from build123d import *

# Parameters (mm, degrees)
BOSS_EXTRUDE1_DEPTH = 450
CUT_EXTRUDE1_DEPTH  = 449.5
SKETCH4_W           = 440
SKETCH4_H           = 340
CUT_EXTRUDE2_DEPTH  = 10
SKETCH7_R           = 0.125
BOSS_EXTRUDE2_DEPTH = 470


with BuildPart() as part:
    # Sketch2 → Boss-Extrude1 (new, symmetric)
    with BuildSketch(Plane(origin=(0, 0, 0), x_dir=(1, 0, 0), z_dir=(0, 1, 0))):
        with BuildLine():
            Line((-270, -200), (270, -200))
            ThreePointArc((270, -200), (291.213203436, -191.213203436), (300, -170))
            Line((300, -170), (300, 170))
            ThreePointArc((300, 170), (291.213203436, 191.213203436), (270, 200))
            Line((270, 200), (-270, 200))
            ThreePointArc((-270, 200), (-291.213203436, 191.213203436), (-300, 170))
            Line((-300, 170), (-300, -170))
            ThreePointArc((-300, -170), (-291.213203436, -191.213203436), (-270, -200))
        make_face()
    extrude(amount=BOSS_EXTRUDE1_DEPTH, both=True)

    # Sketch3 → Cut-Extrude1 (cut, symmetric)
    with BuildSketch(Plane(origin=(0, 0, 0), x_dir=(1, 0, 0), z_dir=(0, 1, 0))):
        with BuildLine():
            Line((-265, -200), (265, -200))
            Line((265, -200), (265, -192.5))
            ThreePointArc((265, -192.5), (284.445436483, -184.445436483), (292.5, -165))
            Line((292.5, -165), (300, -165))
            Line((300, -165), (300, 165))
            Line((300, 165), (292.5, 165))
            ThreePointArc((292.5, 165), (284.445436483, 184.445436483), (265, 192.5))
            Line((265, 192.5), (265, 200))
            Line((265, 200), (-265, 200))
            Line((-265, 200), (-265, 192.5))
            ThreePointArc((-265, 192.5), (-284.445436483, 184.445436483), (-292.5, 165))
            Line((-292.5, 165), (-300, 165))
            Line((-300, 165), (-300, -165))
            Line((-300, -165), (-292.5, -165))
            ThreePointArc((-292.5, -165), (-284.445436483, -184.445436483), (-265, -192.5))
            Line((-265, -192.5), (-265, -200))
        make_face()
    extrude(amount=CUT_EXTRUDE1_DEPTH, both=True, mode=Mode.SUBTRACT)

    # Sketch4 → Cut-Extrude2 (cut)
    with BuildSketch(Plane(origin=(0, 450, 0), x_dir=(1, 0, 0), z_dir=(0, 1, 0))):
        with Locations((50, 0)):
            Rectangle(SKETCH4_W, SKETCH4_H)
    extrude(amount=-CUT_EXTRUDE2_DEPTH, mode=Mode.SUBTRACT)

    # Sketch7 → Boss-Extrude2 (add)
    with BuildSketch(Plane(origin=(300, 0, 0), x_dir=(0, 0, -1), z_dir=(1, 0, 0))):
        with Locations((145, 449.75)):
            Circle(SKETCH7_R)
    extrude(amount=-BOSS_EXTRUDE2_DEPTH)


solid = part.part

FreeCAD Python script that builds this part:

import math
import FreeCAD as App
import Part
import Sketcher
from FreeCAD import Vector
Q = App.Units.Quantity

doc = App.newDocument("Part")
body = doc.addObject("PartDesign::Body", "Body")

sketch1 = body.newObject("Sketcher::SketchObject", "Sketch")
sketch1.AttachmentSupport = (doc.getObject("XZ_Plane"), [""])
sketch1.MapMode = "FlatFace"
sketch1.addGeometry([
    Part.LineSegment(Vector(-270, 200, 0), Vector(270, 200, 0)),
    Part.ArcOfCircle(Part.Circle(Vector(270, 170, 0), Vector(0, 0, 1), 30), math.radians(0), math.radians(90)),
    Part.LineSegment(Vector(300, 170, 0), Vector(300, -170, 0)),
    Part.ArcOfCircle(Part.Circle(Vector(270, -170, 0), Vector(0, 0, 1), 30), math.radians(-90), math.radians(0)),
    Part.LineSegment(Vector(270, -200, 0), Vector(-270, -200, 0)),
    Part.ArcOfCircle(Part.Circle(Vector(-270, -170, 0), Vector(0, 0, 1), 30), math.radians(180), math.radians(270)),
    Part.LineSegment(Vector(-300, -170, 0), Vector(-300, 170, 0)),
    Part.ArcOfCircle(Part.Circle(Vector(-270, 170, 0), Vector(0, 0, 1), 30), math.radians(90), math.radians(180)),
], False)
sketch1.addConstraint([
    Sketcher.Constraint("Tangent", 0, 2, 1, 2),
    Sketcher.Constraint("Tangent", 1, 1, 2, 1),
    Sketcher.Constraint("Tangent", 2, 2, 3, 2),
    Sketcher.Constraint("Tangent", 3, 1, 4, 1),
    Sketcher.Constraint("Tangent", 4, 2, 5, 2),
    Sketcher.Constraint("Tangent", 5, 1, 6, 1),
    Sketcher.Constraint("Tangent", 6, 2, 7, 2),
    Sketcher.Constraint("Tangent", 7, 1, 0, 1),
    Sketcher.Constraint("Horizontal", 0),
    Sketcher.Constraint("Vertical", 2),
    Sketcher.Constraint("Horizontal", 4),
    Sketcher.Constraint("Vertical", 6),
    Sketcher.Constraint("Equal", 1, 3),
    Sketcher.Constraint("Equal", 3, 5),
    Sketcher.Constraint("Equal", 5, 7),
    Sketcher.Constraint("Symmetric", 1, 3, 5, 3, -1, 1),
    Sketcher.Constraint("Radius", 1, Q("30 mm")),
    Sketcher.Constraint("DistanceX", 0, 1, 0, 2, Q("540 mm")),
    Sketcher.Constraint("DistanceY", 2, 2, 2, 1, Q("340 mm")),
])
pad1 = body.newObject("PartDesign::Pad", "Pad")
pad1.Profile = sketch1
pad1.Length = 900
pad1.Midplane = True

sketch2 = body.newObject("Sketcher::SketchObject", "Sketch001")
sketch2.AttachmentSupport = (doc.getObject("XZ_Plane"), [""])
sketch2.MapMode = "FlatFace"
sketch2.addGeometry([
    Part.LineSegment(Vector(-265, 200, 0), Vector(265, 200, 0)),
    Part.LineSegment(Vector(265, 200, 0), Vector(265, 192.5, 0)),
    Part.ArcOfCircle(Part.Circle(Vector(265, 165, 0), Vector(0, 0, 1), 27.5), math.radians(0), math.radians(90)),
    Part.LineSegment(Vector(292.5, 165, 0), Vector(300, 165, 0)),
    Part.LineSegment(Vector(300, 165, 0), Vector(300, -165, 0)),
    Part.LineSegment(Vector(300, -165, 0), Vector(292.5, -165, 0)),
    Part.ArcOfCircle(Part.Circle(Vector(265, -165, 0), Vector(0, 0, 1), 27.5), math.radians(-90), math.radians(0)),
    Part.LineSegment(Vector(265, -192.5, 0), Vector(265, -200, 0)),
    Part.LineSegment(Vector(265, -200, 0), Vector(-265, -200, 0)),
    Part.LineSegment(Vector(-265, -200, 0), Vector(-265, -192.5, 0)),
    Part.ArcOfCircle(Part.Circle(Vector(-265, -165, 0), Vector(0, 0, 1), 27.5), math.radians(180), math.radians(270)),
    Part.LineSegment(Vector(-292.5, -165, 0), Vector(-300, -165, 0)),
    Part.LineSegment(Vector(-300, -165, 0), Vector(-300, 165, 0)),
    Part.LineSegment(Vector(-300, 165, 0), Vector(-292.5, 165, 0)),
    Part.ArcOfCircle(Part.Circle(Vector(-265, 165, 0), Vector(0, 0, 1), 27.5), math.radians(90), math.radians(180)),
    Part.LineSegment(Vector(-265, 192.5, 0), Vector(-265, 200, 0)),
], False)
sketch2.addConstraint([
    Sketcher.Constraint("Coincident", 0, 2, 1, 1),
    Sketcher.Constraint("Coincident", 1, 2, 2, 2),
    Sketcher.Constraint("Coincident", 2, 1, 3, 1),
    Sketcher.Constraint("Coincident", 3, 2, 4, 1),
    Sketcher.Constraint("Coincident", 4, 2, 5, 1),
    Sketcher.Constraint("Coincident", 5, 2, 6, 2),
    Sketcher.Constraint("Coincident", 6, 1, 7, 1),
    Sketcher.Constraint("Coincident", 7, 2, 8, 1),
    Sketcher.Constraint("Coincident", 8, 2, 9, 1),
    Sketcher.Constraint("Coincident", 9, 2, 10, 2),
    Sketcher.Constraint("Coincident", 10, 1, 11, 1),
    Sketcher.Constraint("Coincident", 11, 2, 12, 1),
    Sketcher.Constraint("Coincident", 12, 2, 13, 1),
    Sketcher.Constraint("Coincident", 13, 2, 14, 2),
    Sketcher.Constraint("Coincident", 14, 1, 15, 1),
    Sketcher.Constraint("Coincident", 15, 2, 0, 1),
    Sketcher.Constraint("Horizontal", 0),
    Sketcher.Constraint("Vertical", 1),
    Sketcher.Constraint("Horizontal", 3),
    Sketcher.Constraint("Vertical", 4),
    Sketcher.Constraint("Horizontal", 5),
    Sketcher.Constraint("Vertical", 7),
    Sketcher.Constraint("Horizontal", 8),
    Sketcher.Constraint("Vertical", 9),
    Sketcher.Constraint("Horizontal", 11),
    Sketcher.Constraint("Vertical", 12),
    Sketcher.Constraint("Horizontal", 13),
    Sketcher.Constraint("Vertical", 15),
    Sketcher.Constraint("Equal", 2, 6),
    Sketcher.Constraint("Equal", 6, 10),
    Sketcher.Constraint("Equal", 10, 14),
    Sketcher.Constraint("Symmetric", 2, 3, 10, 3, -1, 1),
    Sketcher.Constraint("Symmetric", 6, 3, 14, 3, -1, 1),
    Sketcher.Constraint("Symmetric", 0, 2, 8, 2, -1, 1),
    Sketcher.Constraint("Symmetric", 3, 2, 11, 2, -1, 1),
    Sketcher.Constraint("Symmetric", 6, 3, 10, 3, -2),
    Sketcher.Constraint("Horizontal", 14, 3, 2, 1),
    Sketcher.Constraint("Horizontal", 10, 3, 4, 2),
    Sketcher.Constraint("Horizontal", 3, 2, 12, 2),
    Sketcher.Constraint("Vertical", 6, 3, 0, 2),
    Sketcher.Constraint("Vertical", 1, 2, 6, 1),
    Sketcher.Constraint("Vertical", 9, 2, 14, 1),
    Sketcher.Constraint("Equal", 13, 1),
    Sketcher.Constraint("Radius", 2, Q("27.5 mm")),
    Sketcher.Constraint("DistanceX", 0, 1, 0, 2, Q("530 mm")),
    Sketcher.Constraint("DistanceY", 4, 2, 4, 1, Q("330 mm")),
    Sketcher.Constraint("DistanceX", 3, 1, 3, 2, Q("7.5 mm")),
])
pocket1 = body.newObject("PartDesign::Pocket", "Pocket")
pocket1.Profile = sketch2
pocket1.Length = 899
pocket1.Midplane = True

sketch3 = body.newObject("Sketcher::SketchObject", "Sketch002")
sketch3.AttachmentSupport = (doc.getObject("XZ_Plane"), [""])
sketch3.MapMode = "FlatFace"
sketch3.AttachmentOffset = App.Placement(Vector(0, 0, -450), App.Rotation())
sketch3.addGeometry([
    Part.LineSegment(Vector(-170, -170, 0), Vector(-170, 170, 0)),
    Part.LineSegment(Vector(-170, 170, 0), Vector(270, 170, 0)),
    Part.LineSegment(Vector(270, 170, 0), Vector(270, -170, 0)),
    Part.LineSegment(Vector(270, -170, 0), Vector(-170, -170, 0)),
], False)
sketch3.addConstraint([
    Sketcher.Constraint("Coincident", 0, 2, 1, 1),
    Sketcher.Constraint("Coincident", 1, 2, 2, 1),
    Sketcher.Constraint("Coincident", 2, 2, 3, 1),
    Sketcher.Constraint("Coincident", 3, 2, 0, 1),
    Sketcher.Constraint("Vertical", 0),
    Sketcher.Constraint("Horizontal", 1),
    Sketcher.Constraint("Vertical", 2),
    Sketcher.Constraint("Horizontal", 3),
    Sketcher.Constraint("DistanceX", 1, 1, 1, 2, Q("440 mm")),
    Sketcher.Constraint("DistanceY", 0, 1, 0, 2, Q("340 mm")),
    Sketcher.Constraint("DistanceX", 0, 2, -1, 1, Q("170 mm")),
    Sketcher.Constraint("DistanceY", -1, 1, 0, 2, Q("170 mm")),
])
pocket2 = body.newObject("PartDesign::Pocket", "Pocket001")
pocket2.Profile = sketch3
pocket2.Length = 10
pocket2.Reversed = True

sketch4 = body.newObject("Sketcher::SketchObject", "Sketch003")
sketch4.AttachmentSupport = (doc.getObject("YZ_Plane"), [""])
sketch4.MapMode = "FlatFace"
sketch4.AttachmentOffset = App.Placement(Vector(0, 0, 300), App.Rotation())
sketch4.addGeometry(Part.Circle(Vector(449.75, -145, 0), Vector(0, 0, 1), 0.125), False)
sketch4.addConstraint([
    Sketcher.Constraint("Diameter", 0, Q("0.25 mm")),
    Sketcher.Constraint("DistanceY", 0, 3, -1, 1, Q("145 mm")),
    Sketcher.Constraint("DistanceX", -1, 1, 0, 3, Q("449.75 mm")),
])
pad2 = body.newObject("PartDesign::Pad", "Pad001")
pad2.Profile = sketch4
pad2.Length = 470
pad2.Reversed = True

doc.recompute()
